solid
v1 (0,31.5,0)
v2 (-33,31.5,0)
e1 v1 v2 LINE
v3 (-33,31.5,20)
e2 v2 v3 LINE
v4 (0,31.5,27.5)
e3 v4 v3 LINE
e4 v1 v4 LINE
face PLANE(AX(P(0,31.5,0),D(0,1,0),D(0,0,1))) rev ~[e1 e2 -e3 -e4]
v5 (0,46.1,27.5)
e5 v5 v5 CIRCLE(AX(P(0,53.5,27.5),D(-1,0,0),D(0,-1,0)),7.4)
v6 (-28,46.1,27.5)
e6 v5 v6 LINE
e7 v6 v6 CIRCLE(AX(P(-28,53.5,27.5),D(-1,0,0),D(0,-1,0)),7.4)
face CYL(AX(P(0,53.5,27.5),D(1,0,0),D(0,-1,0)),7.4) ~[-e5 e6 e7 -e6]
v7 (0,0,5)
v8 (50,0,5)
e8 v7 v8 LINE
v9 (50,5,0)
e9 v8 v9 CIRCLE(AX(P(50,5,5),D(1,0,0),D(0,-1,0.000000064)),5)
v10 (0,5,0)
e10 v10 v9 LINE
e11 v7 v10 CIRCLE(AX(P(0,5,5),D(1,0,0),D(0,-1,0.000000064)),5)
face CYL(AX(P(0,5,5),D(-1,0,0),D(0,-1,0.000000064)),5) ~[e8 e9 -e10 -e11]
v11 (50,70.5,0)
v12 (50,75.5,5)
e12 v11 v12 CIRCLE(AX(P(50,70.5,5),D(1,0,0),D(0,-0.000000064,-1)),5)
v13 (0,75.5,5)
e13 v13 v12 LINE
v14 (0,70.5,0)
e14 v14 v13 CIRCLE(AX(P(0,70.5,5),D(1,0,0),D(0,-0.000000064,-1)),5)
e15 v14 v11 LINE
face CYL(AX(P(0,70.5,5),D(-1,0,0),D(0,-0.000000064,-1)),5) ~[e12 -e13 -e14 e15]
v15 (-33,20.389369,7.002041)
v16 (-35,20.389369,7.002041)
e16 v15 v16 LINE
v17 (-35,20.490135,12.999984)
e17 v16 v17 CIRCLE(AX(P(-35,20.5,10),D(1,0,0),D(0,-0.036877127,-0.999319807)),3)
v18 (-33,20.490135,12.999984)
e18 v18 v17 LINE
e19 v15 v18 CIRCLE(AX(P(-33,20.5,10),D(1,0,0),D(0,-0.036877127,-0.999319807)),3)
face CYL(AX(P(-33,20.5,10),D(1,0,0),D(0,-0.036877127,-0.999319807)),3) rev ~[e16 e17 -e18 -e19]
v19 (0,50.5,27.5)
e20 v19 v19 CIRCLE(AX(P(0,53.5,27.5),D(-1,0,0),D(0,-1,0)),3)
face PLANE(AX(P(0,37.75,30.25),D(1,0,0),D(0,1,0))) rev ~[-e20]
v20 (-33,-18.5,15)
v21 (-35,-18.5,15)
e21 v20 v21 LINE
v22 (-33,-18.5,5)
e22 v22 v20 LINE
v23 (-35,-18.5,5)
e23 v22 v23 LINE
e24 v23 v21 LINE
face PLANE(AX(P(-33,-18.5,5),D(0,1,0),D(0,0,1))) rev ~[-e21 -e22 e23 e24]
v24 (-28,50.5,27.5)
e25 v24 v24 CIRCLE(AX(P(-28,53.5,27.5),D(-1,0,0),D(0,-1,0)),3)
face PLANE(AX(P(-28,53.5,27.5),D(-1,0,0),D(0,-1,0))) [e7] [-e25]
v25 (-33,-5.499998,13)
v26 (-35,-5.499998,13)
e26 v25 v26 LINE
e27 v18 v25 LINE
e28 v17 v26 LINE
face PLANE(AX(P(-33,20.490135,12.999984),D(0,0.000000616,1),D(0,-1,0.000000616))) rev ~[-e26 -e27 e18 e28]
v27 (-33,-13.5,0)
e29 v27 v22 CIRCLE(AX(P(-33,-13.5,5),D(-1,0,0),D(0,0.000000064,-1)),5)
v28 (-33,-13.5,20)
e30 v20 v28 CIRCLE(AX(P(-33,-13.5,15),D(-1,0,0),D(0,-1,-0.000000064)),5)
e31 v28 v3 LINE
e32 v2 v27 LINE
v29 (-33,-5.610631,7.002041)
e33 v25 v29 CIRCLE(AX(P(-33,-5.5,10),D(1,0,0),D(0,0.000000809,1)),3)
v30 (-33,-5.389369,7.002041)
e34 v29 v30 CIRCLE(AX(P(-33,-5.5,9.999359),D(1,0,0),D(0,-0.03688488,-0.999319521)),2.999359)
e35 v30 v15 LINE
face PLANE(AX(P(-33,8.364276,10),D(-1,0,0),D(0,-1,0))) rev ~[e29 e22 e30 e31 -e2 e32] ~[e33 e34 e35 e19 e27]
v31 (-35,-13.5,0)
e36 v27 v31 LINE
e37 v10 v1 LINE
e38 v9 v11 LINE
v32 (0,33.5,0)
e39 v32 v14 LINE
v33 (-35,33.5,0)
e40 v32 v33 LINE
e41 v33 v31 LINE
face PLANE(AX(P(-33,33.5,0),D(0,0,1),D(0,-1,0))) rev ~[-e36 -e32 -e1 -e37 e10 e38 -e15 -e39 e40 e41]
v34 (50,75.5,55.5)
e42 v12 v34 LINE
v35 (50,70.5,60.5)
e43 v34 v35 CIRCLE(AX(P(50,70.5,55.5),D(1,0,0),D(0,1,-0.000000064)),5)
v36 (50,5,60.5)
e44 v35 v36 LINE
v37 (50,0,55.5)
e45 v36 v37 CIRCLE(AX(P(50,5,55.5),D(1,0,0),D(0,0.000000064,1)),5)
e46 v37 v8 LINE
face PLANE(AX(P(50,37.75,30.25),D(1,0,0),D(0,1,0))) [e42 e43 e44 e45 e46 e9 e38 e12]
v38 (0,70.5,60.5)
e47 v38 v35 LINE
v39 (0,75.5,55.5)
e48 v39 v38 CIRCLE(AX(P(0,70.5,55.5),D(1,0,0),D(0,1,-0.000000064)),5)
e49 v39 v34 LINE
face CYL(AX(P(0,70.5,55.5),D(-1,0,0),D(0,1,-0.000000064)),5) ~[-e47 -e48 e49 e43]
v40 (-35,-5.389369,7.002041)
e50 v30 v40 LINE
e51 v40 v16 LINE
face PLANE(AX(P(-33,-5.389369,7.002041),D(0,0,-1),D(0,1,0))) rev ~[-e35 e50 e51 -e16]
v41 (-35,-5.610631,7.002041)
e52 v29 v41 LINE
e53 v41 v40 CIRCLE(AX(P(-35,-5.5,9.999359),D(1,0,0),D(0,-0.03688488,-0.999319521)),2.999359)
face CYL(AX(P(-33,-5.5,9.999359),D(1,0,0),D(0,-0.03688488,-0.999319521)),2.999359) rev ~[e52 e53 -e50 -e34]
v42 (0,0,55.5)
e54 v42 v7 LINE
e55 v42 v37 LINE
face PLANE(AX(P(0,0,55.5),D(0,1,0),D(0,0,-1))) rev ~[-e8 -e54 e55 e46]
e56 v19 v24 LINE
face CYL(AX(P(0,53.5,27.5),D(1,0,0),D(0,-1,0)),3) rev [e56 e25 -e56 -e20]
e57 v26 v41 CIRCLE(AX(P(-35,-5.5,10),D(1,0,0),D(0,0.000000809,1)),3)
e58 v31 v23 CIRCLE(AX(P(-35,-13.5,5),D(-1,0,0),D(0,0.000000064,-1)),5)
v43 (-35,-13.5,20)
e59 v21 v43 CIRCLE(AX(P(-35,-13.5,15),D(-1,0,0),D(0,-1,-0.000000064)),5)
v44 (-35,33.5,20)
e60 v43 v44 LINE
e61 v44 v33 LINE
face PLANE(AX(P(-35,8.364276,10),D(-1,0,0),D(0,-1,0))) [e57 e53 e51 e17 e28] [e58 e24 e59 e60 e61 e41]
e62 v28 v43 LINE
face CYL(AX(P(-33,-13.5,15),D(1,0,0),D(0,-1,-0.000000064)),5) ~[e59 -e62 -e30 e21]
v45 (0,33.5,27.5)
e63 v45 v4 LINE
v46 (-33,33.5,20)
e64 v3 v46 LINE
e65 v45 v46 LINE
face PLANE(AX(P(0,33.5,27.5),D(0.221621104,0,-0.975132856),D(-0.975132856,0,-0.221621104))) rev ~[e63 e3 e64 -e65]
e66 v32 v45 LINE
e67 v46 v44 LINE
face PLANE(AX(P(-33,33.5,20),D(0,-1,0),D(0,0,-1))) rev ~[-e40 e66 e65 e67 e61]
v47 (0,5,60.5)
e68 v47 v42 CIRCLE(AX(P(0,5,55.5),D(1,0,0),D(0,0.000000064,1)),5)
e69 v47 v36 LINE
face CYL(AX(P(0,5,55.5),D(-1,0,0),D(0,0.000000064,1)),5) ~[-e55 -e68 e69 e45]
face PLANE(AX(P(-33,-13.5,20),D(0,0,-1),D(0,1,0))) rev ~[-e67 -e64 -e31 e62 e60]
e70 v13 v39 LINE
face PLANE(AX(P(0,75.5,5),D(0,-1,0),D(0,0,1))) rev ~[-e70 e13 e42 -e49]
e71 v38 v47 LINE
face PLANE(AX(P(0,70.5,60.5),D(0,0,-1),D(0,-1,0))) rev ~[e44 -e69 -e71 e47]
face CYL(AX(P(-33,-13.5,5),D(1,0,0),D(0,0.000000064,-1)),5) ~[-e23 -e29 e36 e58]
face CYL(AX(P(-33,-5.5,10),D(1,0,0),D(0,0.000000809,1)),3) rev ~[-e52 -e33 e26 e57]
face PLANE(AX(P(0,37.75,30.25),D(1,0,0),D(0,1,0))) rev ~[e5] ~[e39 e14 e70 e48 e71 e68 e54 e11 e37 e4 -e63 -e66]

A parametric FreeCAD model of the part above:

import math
import FreeCAD as App
import Part
import Sketcher
Q = App.Units.Quantity

doc = App.newDocument("Part")
params = doc.addObject("Spreadsheet::Sheet", "Params")
for row, (alias, value) in enumerate([
    ("sketch1_radius", "5 mm"),
    ("sketch1_width", "65.5 mm"),
    ("sketch1_height", "50.5 mm"),
    ("pad1_length", "50 mm"),
    ("sketch2_diameter", "6 mm"),
    ("sketch2_diameter2", "14.8 mm"),
    ("pad2_length", "28 mm"),
    ("sketch3_width", "2 mm"),
    ("sketch3_height", "27.5 mm"),
    ("pad3_length", "33 mm"),
    ("sketch4_radius", "5 mm"),
    ("sketch4_radius2", "3 mm"),
    ("sketch4_width", "47 mm"),
    ("sketch4_height", "20 mm"),
    ("pad4_length", "2 mm"),
    ("pocket1_length", "25 mm"),
], start=1):
    params.set(f"A{row}", alias)
    params.set(f"B{row}", "=" + value)
    params.setAlias(f"B{row}", alias)

body = doc.addObject("PartDesign::Body", "Body")

# Sketch on YZ plane
sketch1 = doc.addObject("Sketcher::SketchObject", "Sketch")
body.addObject(sketch1)
sketch1.AttachmentSupport = (doc.YZ_Plane, [""])
sketch1.MapMode = "FlatFace"
sketch1.addGeometry([
    Part.ArcOfCircle(Part.Circle(App.Vector(5, 5, 0), App.Vector(0, 0, 1), 5), math.radians(180), math.radians(270)),  # 0
    Part.LineSegment(App.Vector(5, 0, 0), App.Vector(70.5, 0, 0)),  # 1
    Part.ArcOfCircle(Part.Circle(App.Vector(70.5, 5, 0), App.Vector(0, 0, 1), 5), math.radians(-90), math.radians(0)),  # 2
    Part.LineSegment(App.Vector(75.5, 5, 0), App.Vector(75.5, 55.5, 0)),  # 3
    Part.ArcOfCircle(Part.Circle(App.Vector(70.5, 55.5, 0), App.Vector(0, 0, 1), 5), math.radians(0), math.radians(90)),  # 4
    Part.LineSegment(App.Vector(70.5, 60.5, 0), App.Vector(5, 60.5, 0)),  # 5
    Part.ArcOfCircle(Part.Circle(App.Vector(5, 55.5, 0), App.Vector(0, 0, 1), 5), math.radians(90), math.radians(180)),  # 6
    Part.LineSegment(App.Vector(0, 55.5, 0), App.Vector(0, 5, 0)),  # 7
], False)
sketch1.addConstraint([
    Sketcher.Constraint("Tangent", 0, 2, 1, 1),
    Sketcher.Constraint("Tangent", 1, 2, 2, 1),
    Sketcher.Constraint("Tangent", 2, 2, 3, 1),
    Sketcher.Constraint("Tangent", 3, 2, 4, 1),
    Sketcher.Constraint("Tangent", 4, 2, 5, 1),
    Sketcher.Constraint("Tangent", 5, 2, 6, 1),
    Sketcher.Constraint("Tangent", 6, 2, 7, 1),
    Sketcher.Constraint("Tangent", 7, 2, 0, 1),
    Sketcher.Constraint("Horizontal", 1),
    Sketcher.Constraint("Vertical", 3),
    Sketcher.Constraint("Horizontal", 5),
    Sketcher.Constraint("Vertical", 7),
    Sketcher.Constraint("Equal", 0, 2),
    Sketcher.Constraint("Equal", 2, 4),
    Sketcher.Constraint("Equal", 4, 6),
    Sketcher.Constraint("PointOnObject", 0, 2, -1),
    Sketcher.Constraint("PointOnObject", 6, 2, -2),
    Sketcher.Constraint("Radius", 0, Q("5 mm")),
    Sketcher.Constraint("DistanceX", 1, 1, 1, 2, Q("65.5 mm")),
    Sketcher.Constraint("DistanceY", 3, 1, 3, 2, Q("50.5 mm")),
])
sketch1.setExpression("Constraints[17]", "Params.sketch1_radius")
sketch1.setExpression("Constraints[18]", "Params.sketch1_width")
sketch1.setExpression("Constraints[19]", "Params.sketch1_height")
pad1 = doc.addObject("PartDesign::Pad", "Pad")
body.addObject(pad1)
pad1.Profile = sketch1
pad1.setExpression("Length", "Params.pad1_length")

# Sketch on YZ plane
sketch2 = doc.addObject("Sketcher::SketchObject", "Sketch001")
body.addObject(sketch2)
sketch2.AttachmentSupport = (doc.YZ_Plane, [""])
sketch2.MapMode = "FlatFace"
sketch2.addGeometry([
    Part.Circle(App.Vector(53.5, 27.5, 0), App.Vector(0, 0, 1), 7.4),
    Part.Circle(App.Vector(53.5, 27.5, 0), App.Vector(0, 0, 1), 3),
], False)
sketch2.addConstraint([
    Sketcher.Constraint("Coincident", 1, 3, 0, 3),
    Sketcher.Constraint("Diameter", 1, Q("6 mm")),
    Sketcher.Constraint("Diameter", 0, Q("14.8 mm")),
    Sketcher.Constraint("DistanceX", -1, 1, 0, 3, Q("53.5 mm")),
    Sketcher.Constraint("DistanceY", -1, 1, 0, 3, Q("27.5 mm")),
])
sketch2.setExpression("Constraints[1]", "Params.sketch2_diameter")
sketch2.setExpression("Constraints[2]", "Params.sketch2_diameter2")
pad2 = doc.addObject("PartDesign::Pad", "Pad001")
body.addObject(pad2)
pad2.Profile = sketch2
pad2.setExpression("Length", "Params.pad2_length")
pad2.Reversed = True

# Sketch on YZ plane
sketch3 = doc.addObject("Sketcher::SketchObject", "Sketch002")
body.addObject(sketch3)
sketch3.AttachmentSupport = (doc.YZ_Plane, [""])
sketch3.MapMode = "FlatFace"
sketch3.addGeometry([
    Part.LineSegment(App.Vector(33.5, 27.5, 0), App.Vector(33.5, 0, 0)),
    Part.LineSegment(App.Vector(33.5, 0, 0), App.Vector(31.5, 0, 0)),
    Part.LineSegment(App.Vector(31.5, 0, 0), App.Vector(31.5, 27.5, 0)),
    Part.LineSegment(App.Vector(31.5, 27.5, 0), App.Vector(33.5, 27.5, 0)),
], False)
sketch3.addConstraint([
    Sketcher.Constraint("Coincident", 0, 2, 1, 1),
    Sketcher.Constraint("Coincident", 1, 2, 2, 1),
    Sketcher.Constraint("Coincident", 2, 2, 3, 1),
    Sketcher.Constraint("Coincident", 3, 2, 0, 1),
    Sketcher.Constraint("Vertical", 0),
    Sketcher.Constraint("Horizontal", 1),
    Sketcher.Constraint("Vertical", 2),
    Sketcher.Constraint("Horizontal", 3),
    Sketcher.Constraint("PointOnObject", 0, 2, -1),
    Sketcher.Constraint("DistanceX", 1, 2, 1, 1, Q("2 mm")),
    Sketcher.Constraint("DistanceY", 0, 2, 0, 1, Q("27.5 mm")),
    Sketcher.Constraint("DistanceX", -1, 1, 0, 2, Q("33.5 mm")),
])
sketch3.setExpression("Constraints[9]", "Params.sketch3_width")
sketch3.setExpression("Constraints[10]", "Params.sketch3_height")
pad3 = doc.addObject("PartDesign::Pad", "Pad002")
body.addObject(pad3)
pad3.Profile = sketch3
pad3.setExpression("Length", "Params.pad3_length")
pad3.Reversed = True

# Sketch on YZ plane
sketch4 = doc.addObject("Sketcher::SketchObject", "Sketch003")
body.addObject(sketch4)
sketch4.AttachmentSupport = (doc.YZ_Plane, [""])
sketch4.MapMode = "FlatFace"
sketch4.AttachmentOffset = App.Placement(App.Vector(0, 0, -33), App.Rotation())
sketch4.addGeometry([
    Part.LineSegment(App.Vector(33.5, 20, 0), App.Vector(33.5, 0, 0)),  # 0
    Part.LineSegment(App.Vector(33.5, 0, 0), App.Vector(-13.5, 0, 0)),  # 1
    Part.ArcOfCircle(Part.Circle(App.Vector(-13.5, 5, 0), App.Vector(0, 0, 1), 5), math.radians(180), math.radians(270)),  # 2
    Part.LineSegment(App.Vector(-18.5, 5, 0), App.Vector(-18.5, 15, 0)),  # 3
    Part.ArcOfCircle(Part.Circle(App.Vector(-13.5, 15, 0), App.Vector(0, 0, 1), 5), math.radians(90), math.radians(180)),  # 4
    Part.LineSegment(App.Vector(-13.5, 20, 0), App.Vector(33.5, 20, 0)),  # 5
    Part.ArcOfCircle(Part.Circle(App.Vector(-5.5, 10, 0), App.Vector(0, 0, 1), 3), math.radians(90), math.radians(268)),  # 6
    Part.ArcOfCircle(Part.Circle(App.Vector(-5.5, 10, 0), App.Vector(0, 0, 1), 3), math.radians(-92.11), math.radians(-87.89)),  # 7
    Part.LineSegment(App.Vector(-5.39, 7, 0), App.Vector(20.39, 7, 0)),  # 8
    Part.ArcOfCircle(Part.Circle(App.Vector(20.5, 10, 0), App.Vector(0, 0, 1), 3), math.radians(-92), math.radians(90)),  # 9
    Part.LineSegment(App.Vector(20.49, 13, 0), App.Vector(-5.5, 13, 0)),  # 10
], False)
sketch4.addConstraint([
    Sketcher.Constraint("Coincident", 0, 2, 1, 1),
    Sketcher.Constraint("Tangent", 1, 2, 2, 2),
    Sketcher.Constraint("Tangent", 2, 1, 3, 1),
    Sketcher.Constraint("Tangent", 3, 2, 4, 2),
    Sketcher.Constraint("Tangent", 4, 1, 5, 1),
    Sketcher.Constraint("Coincident", 5, 2, 0, 1),
    Sketcher.Constraint("Coincident", 6, 2, 7, 1),
    Sketcher.Constraint("Coincident", 7, 2, 8, 1),
    Sketcher.Constraint("Coincident", 8, 2, 9, 1),
    Sketcher.Constraint("Coincident", 9, 2, 10, 1),
    Sketcher.Constraint("Tangent", 10, 2, 6, 1),
    Sketcher.Constraint("Vertical", 0),
    Sketcher.Constraint("Horizontal", 1),
    Sketcher.Constraint("Vertical", 3),
    Sketcher.Constraint("Horizontal", 5),
    Sketcher.Constraint("Horizontal", 8),
    Sketcher.Constraint("Equal", 2, 4),
    Sketcher.Constraint("Equal", 6, 9),
    Sketcher.Constraint("PointOnObject", 0, 2, -1),
    Sketcher.Constraint("Horizontal", 6, 3, 9, 3),
    Sketcher.Constraint("Horizontal", 6, 2, 7, 2),
    Sketcher.Constraint("Vertical", 6, 3, 7, 3),
    Sketcher.Constraint("Radius", 2, Q("5 mm")),
    Sketcher.Constraint("Radius", 6, Q("3 mm")),
    Sketcher.Constraint("DistanceX", 1, 2, 1, 1, Q("47 mm")),
    Sketcher.Constraint("DistanceY", 0, 2, 0, 1, Q("20 mm")),
    Sketcher.Constraint("DistanceY", -1, 1, 6, 3, Q("10 mm")),
    Sketcher.Constraint("DistanceX", 4, 3, 6, 3, Q("8 mm")),
    Sketcher.Constraint("DistanceX", 7, 3, 9, 3, Q("26 mm")),
    Sketcher.Constraint("DistanceX", 2, 3, -1, 1, Q("13.5 mm")),
    Sketcher.Constraint("Radius", 7, Q("2.999359 mm")),
    Sketcher.Constraint("DistanceX", 8, 1, 8, 2, Q("25.778738 mm")),
    Sketcher.Constraint("Distance", 10, Q("25.990133 mm")),
])
sketch4.setExpression("Constraints[22]", "Params.sketch4_radius")
sketch4.setExpression("Constraints[23]", "Params.sketch4_radius2")
sketch4.setExpression("Constraints[24]", "Params.sketch4_width")
sketch4.setExpression("Constraints[25]", "Params.sketch4_height")
pad4 = doc.addObject("PartDesign::Pad", "Pad003")
body.addObject(pad4)
pad4.Profile = sketch4
pad4.setExpression("Length", "Params.pad4_length")
pad4.Reversed = True

# Sketch on XZ plane
sketch5 = doc.addObject("Sketcher::SketchObject", "Sketch004")
body.addObject(sketch5)
sketch5.AttachmentSupport = (doc.XZ_Plane, [""])
sketch5.MapMode = "FlatFace"
sketch5.AttachmentOffset = App.Placement(App.Vector(0, 0, -33.5), App.Rotation())
sketch5.addGeometry([
    Part.LineSegment(App.Vector(0, 28, 0), App.Vector(-33, 20, 0)),
    Part.LineSegment(App.Vector(-33, 20, 0), App.Vector(-42, 31, 0)),
    Part.LineSegment(App.Vector(-42, 31, 0), App.Vector(-19, 39, 0)),
    Part.LineSegment(App.Vector(-19, 39, 0), App.Vector(0, 28, 0)),
], False)
sketch5.addConstraint([
    Sketcher.Constraint("Coincident", 0, 2, 1, 1),
    Sketcher.Constraint("Coincident", 1, 2, 2, 1),
    Sketcher.Constraint("Coincident", 2, 2, 3, 1),
    Sketcher.Constraint("Coincident", 3, 2, 0, 1),
    Sketcher.Constraint("PointOnObject", 3, 2, -2),
    Sketcher.Constraint("DistanceX", 0, 2, -1, 1, Q("33 mm")),
    Sketcher.Constraint("DistanceY", -1, 1, 0, 2, Q("20 mm")),
    Sketcher.Constraint("DistanceY", -1, 1, 3, 2, Q("27.5 mm")),
    Sketcher.Constraint("Distance", 3, Q("22.297419 mm")),
    Sketcher.Constraint("DistanceX", 1, 2, -1, 1, Q("42.120021 mm")),
    Sketcher.Constraint("DistanceX", 2, 2, -1, 1, Q("19.240811 mm")),
    Sketcher.Constraint("DistanceY", 1, 2, 2, 2, Q("7.95799 mm")),
])
pocket1 = doc.addObject("PartDesign::Pocket", "Pocket")
body.addObject(pocket1)
pocket1.Profile = sketch5
pocket1.setExpression("Length", "Params.pocket1_length")
pocket1.Reversed = True

doc.recompute()
